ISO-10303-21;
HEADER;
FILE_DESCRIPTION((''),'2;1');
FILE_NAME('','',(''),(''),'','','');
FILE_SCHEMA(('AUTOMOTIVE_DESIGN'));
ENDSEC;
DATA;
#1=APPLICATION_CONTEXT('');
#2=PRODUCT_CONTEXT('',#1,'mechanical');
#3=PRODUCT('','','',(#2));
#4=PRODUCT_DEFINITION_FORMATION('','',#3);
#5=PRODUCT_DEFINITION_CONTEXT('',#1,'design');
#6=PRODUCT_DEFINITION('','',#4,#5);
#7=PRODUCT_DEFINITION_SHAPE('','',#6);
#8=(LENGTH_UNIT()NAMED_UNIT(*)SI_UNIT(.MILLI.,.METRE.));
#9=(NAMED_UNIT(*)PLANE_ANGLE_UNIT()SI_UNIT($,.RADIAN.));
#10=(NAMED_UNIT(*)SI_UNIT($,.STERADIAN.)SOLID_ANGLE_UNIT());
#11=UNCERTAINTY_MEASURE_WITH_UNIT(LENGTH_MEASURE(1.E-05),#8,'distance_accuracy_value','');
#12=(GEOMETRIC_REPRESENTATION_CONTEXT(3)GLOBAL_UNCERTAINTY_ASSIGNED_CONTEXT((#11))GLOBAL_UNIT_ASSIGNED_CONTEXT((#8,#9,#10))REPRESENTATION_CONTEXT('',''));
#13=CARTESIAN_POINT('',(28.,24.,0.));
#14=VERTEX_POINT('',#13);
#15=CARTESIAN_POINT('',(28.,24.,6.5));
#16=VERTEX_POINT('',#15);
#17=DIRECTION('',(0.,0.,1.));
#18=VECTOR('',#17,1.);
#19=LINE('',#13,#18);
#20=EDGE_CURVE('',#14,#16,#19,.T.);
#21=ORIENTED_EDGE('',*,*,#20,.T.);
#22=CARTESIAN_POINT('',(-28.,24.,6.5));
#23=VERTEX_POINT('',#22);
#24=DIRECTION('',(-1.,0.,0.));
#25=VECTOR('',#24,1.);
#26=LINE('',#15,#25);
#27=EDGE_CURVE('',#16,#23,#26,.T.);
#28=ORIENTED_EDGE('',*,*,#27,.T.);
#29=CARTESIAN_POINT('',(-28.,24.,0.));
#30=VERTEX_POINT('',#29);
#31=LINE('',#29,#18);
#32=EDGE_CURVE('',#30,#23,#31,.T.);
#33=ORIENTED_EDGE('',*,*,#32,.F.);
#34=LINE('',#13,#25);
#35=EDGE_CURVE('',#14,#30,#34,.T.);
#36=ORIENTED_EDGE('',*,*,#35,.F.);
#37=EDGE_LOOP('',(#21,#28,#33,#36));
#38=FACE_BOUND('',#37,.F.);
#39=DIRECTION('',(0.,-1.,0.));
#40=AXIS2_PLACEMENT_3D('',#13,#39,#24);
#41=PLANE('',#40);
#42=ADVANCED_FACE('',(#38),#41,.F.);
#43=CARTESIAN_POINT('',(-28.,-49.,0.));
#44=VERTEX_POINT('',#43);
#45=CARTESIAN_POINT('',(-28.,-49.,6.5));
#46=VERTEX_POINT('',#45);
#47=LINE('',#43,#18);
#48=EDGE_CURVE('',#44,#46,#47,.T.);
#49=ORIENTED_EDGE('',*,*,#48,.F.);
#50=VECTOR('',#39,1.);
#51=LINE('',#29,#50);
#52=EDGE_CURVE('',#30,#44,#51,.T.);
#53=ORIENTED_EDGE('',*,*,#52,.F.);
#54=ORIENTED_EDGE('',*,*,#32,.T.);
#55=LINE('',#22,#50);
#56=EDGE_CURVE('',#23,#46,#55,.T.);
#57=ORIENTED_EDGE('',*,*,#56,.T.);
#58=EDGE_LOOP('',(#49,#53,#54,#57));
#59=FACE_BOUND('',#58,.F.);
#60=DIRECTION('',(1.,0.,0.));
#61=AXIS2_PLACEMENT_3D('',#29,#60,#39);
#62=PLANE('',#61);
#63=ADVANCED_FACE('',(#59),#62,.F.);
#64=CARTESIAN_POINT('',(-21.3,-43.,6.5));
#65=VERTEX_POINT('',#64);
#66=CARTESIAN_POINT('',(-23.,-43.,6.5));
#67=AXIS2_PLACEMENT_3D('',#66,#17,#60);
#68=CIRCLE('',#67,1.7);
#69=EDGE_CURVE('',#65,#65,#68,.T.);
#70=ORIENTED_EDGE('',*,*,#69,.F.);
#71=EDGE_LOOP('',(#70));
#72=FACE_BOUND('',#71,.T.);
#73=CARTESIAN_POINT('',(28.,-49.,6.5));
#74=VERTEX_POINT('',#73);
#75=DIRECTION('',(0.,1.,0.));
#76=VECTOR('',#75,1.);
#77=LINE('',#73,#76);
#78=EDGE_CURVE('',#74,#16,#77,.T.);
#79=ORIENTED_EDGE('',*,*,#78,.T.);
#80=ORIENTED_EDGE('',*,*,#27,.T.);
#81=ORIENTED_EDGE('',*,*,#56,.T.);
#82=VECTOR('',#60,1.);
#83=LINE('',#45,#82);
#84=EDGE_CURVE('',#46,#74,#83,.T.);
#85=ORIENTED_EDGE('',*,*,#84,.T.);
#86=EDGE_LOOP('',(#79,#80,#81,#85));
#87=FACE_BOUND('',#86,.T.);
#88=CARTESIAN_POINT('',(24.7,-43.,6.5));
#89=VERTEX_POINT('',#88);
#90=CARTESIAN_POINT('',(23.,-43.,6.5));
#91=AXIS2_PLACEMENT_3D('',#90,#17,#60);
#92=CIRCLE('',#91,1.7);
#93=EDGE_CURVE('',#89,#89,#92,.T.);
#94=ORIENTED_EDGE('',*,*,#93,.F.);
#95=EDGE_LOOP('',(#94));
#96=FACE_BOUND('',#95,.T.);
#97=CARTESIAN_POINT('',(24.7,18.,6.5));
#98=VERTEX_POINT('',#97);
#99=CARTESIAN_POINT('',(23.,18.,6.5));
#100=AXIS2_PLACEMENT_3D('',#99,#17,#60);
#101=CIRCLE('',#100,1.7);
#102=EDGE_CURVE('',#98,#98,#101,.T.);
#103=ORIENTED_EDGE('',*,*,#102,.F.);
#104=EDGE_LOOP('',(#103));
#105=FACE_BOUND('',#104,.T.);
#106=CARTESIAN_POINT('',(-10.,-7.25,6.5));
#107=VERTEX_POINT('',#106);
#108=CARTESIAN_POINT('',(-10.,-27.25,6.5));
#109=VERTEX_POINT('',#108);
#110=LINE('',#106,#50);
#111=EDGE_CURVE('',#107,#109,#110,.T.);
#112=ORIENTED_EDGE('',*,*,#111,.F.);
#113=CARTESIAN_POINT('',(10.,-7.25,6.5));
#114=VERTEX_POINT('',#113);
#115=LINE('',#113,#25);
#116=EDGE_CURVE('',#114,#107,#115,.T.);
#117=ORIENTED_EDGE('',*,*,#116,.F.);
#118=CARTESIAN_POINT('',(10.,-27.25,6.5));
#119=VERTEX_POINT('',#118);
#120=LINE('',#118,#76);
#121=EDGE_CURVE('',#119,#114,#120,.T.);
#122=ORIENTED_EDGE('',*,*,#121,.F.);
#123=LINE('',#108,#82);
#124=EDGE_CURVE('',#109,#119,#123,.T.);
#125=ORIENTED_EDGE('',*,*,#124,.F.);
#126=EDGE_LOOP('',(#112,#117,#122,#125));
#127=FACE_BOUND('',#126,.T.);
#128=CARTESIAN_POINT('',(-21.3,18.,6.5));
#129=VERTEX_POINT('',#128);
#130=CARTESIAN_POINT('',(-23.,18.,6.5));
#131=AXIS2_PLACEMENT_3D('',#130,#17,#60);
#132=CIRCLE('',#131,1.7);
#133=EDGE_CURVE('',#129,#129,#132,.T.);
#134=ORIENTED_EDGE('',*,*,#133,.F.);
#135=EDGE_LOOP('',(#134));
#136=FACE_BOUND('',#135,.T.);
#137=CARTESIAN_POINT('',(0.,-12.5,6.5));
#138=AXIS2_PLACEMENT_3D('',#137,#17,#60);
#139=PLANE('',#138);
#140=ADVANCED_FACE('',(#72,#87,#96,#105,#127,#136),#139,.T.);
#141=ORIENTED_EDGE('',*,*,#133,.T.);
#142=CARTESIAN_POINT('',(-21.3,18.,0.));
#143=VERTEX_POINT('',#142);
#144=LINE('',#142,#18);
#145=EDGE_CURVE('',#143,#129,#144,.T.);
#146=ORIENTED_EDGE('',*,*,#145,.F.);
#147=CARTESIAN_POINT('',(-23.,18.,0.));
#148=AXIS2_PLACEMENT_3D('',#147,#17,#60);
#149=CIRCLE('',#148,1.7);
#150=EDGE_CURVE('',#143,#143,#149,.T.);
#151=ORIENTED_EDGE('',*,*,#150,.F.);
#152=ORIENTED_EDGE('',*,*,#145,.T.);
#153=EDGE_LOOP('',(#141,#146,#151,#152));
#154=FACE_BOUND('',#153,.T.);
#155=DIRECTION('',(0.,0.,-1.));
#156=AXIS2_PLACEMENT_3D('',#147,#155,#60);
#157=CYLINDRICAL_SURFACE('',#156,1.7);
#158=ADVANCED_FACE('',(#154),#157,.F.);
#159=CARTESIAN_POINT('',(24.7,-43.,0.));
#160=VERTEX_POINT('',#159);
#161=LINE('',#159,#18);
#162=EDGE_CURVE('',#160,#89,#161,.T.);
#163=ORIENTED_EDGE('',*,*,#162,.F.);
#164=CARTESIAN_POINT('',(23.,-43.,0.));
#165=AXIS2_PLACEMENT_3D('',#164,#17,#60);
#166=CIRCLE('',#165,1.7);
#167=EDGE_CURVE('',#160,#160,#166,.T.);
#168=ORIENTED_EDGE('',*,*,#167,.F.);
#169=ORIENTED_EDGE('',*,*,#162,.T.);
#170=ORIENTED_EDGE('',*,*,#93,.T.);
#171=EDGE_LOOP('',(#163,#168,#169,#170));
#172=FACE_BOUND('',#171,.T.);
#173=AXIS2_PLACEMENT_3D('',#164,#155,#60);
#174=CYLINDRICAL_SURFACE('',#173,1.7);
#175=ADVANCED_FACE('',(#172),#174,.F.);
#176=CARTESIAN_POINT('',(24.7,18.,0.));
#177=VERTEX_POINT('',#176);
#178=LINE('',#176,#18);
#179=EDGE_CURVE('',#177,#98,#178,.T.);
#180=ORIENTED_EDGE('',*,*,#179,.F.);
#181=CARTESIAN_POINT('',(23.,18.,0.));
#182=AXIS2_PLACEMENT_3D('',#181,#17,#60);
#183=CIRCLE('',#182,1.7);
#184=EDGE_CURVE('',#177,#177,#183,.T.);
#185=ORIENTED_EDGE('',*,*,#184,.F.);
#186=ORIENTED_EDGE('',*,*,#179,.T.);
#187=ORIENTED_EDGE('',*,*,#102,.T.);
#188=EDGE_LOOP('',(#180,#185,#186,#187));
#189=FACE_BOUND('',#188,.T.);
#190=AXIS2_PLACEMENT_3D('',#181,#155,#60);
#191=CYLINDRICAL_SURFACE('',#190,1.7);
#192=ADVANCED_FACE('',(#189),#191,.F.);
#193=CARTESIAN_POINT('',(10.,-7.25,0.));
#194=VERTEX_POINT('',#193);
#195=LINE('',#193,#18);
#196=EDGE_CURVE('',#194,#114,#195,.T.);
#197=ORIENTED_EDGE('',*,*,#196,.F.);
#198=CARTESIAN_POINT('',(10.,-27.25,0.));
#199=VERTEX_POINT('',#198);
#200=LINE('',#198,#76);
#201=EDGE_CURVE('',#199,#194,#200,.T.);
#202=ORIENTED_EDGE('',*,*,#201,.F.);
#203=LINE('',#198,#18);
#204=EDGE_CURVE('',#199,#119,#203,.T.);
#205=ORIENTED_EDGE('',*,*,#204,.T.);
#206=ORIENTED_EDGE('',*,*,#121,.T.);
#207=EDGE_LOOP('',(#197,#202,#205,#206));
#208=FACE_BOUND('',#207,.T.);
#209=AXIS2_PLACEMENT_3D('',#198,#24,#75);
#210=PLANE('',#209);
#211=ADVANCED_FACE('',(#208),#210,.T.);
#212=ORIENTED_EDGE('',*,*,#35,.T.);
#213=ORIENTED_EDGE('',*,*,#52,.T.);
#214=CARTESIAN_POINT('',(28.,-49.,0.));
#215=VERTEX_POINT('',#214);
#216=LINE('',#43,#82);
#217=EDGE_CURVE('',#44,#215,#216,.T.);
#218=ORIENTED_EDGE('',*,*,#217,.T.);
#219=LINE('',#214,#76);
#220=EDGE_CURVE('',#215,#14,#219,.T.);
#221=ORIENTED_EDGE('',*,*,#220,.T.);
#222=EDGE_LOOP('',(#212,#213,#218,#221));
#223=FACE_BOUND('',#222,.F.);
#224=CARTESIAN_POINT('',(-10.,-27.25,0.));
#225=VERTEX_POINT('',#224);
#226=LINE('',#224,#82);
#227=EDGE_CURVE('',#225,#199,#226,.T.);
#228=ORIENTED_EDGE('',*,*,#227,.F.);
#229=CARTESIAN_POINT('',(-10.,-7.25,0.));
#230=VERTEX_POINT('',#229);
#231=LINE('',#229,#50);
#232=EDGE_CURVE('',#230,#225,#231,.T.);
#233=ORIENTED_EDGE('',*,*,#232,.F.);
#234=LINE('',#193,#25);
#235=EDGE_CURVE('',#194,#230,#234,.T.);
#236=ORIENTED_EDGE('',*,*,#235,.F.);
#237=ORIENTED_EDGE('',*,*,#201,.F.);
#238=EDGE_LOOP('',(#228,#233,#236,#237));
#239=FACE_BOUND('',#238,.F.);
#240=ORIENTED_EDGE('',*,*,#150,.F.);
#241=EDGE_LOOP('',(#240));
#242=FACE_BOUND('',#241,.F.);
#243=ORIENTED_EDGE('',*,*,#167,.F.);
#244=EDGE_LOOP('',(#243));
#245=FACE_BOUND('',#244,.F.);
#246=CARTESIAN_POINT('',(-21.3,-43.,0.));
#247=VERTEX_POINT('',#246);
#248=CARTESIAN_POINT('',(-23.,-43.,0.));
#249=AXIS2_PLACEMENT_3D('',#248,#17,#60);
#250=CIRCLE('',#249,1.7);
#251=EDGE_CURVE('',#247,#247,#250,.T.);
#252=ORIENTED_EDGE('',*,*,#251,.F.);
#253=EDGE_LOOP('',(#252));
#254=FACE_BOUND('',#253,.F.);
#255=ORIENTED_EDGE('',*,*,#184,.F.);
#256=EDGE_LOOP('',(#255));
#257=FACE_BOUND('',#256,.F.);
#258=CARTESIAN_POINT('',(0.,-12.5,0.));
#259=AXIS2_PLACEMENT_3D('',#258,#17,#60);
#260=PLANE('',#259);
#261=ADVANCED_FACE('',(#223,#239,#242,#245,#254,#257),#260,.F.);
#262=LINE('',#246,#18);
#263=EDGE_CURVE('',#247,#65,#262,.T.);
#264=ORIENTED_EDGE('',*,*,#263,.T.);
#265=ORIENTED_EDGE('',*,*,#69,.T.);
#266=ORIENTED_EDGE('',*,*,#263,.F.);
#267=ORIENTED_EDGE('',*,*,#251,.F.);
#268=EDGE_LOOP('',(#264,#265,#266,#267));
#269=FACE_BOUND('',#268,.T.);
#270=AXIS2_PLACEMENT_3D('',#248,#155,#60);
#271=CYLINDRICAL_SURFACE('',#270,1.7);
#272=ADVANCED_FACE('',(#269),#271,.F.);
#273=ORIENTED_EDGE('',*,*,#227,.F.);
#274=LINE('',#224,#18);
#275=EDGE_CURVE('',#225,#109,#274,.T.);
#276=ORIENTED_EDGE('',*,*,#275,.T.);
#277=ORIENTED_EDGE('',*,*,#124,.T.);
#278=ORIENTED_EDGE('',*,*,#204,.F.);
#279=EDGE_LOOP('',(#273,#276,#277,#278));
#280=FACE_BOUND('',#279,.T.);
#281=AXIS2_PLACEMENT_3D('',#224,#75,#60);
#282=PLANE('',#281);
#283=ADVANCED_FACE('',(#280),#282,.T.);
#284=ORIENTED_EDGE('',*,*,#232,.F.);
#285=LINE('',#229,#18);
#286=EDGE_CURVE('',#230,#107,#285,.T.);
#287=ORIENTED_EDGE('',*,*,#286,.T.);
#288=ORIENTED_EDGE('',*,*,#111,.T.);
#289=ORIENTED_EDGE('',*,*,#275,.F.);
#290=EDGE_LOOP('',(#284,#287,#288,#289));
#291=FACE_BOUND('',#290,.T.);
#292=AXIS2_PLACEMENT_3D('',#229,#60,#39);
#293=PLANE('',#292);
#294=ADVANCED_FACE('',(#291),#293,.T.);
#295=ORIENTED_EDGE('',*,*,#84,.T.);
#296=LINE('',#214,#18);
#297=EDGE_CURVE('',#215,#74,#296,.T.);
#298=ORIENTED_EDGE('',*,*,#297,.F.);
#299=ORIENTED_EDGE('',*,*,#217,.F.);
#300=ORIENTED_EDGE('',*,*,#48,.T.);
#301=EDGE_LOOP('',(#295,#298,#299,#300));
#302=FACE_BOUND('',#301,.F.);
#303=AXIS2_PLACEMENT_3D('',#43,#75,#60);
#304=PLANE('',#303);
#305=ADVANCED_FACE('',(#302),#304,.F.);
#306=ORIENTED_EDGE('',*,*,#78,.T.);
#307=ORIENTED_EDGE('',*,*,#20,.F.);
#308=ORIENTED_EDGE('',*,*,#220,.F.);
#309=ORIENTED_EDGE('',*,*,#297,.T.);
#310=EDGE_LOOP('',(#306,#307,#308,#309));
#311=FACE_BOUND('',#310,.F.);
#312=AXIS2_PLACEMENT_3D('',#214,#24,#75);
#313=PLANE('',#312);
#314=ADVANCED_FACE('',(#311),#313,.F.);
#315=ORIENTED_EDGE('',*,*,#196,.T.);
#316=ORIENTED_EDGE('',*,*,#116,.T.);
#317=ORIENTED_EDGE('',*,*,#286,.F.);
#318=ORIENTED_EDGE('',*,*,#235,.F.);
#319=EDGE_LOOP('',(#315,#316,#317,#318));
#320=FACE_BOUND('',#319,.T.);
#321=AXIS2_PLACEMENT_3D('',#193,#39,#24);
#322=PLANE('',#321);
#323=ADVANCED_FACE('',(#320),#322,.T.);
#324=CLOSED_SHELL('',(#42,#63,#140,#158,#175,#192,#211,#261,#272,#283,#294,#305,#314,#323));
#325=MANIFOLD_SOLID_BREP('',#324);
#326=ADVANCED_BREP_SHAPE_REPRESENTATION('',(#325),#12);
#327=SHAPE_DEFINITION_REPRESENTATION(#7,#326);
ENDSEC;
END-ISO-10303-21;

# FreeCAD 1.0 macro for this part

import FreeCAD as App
import Part
import Sketcher
Q = App.Units.Quantity

doc = App.newDocument("Part")
body = doc.addObject("PartDesign::Body", "Body")

# Sketch on XY plane
sketch1 = body.newObject("Sketcher::SketchObject", "Sketch")
sketch1.AttachmentSupport = (doc.getObject("XY_Plane"), [""])
sketch1.MapMode = "FlatFace"
sketch1.addGeometry([
    Part.LineSegment(App.Vector(-28, 24, 0), App.Vector(-28, -49, 0)),  # 0
    Part.LineSegment(App.Vector(-28, -49, 0), App.Vector(28, -49, 0)),  # 1
    Part.LineSegment(App.Vector(28, -49, 0), App.Vector(28, 24, 0)),  # 2
    Part.LineSegment(App.Vector(28, 24, 0), App.Vector(-28, 24, 0)),  # 3
    Part.Circle(App.Vector(-23, -43, 0), App.Vector(0, 0, 1), 1.7),  # 4
    Part.Circle(App.Vector(23, -43, 0), App.Vector(0, 0, 1), 1.7),  # 5
    Part.LineSegment(App.Vector(10, -27.25, 0), App.Vector(-10, -27.25, 0)),  # 6
    Part.LineSegment(App.Vector(-10, -27.25, 0), App.Vector(-10, -7.25, 0)),  # 7
    Part.LineSegment(App.Vector(-10, -7.25, 0), App.Vector(10, -7.25, 0)),  # 8
    Part.LineSegment(App.Vector(10, -7.25, 0), App.Vector(10, -27.25, 0)),  # 9
    Part.Circle(App.Vector(-23, 18, 0), App.Vector(0, 0, 1), 1.7),  # 10
    Part.Circle(App.Vector(23, 18, 0), App.Vector(0, 0, 1), 1.7),  # 11
], False)
sketch1.addConstraint([
    Sketcher.Constraint("Coincident", 0, 2, 1, 1),
    Sketcher.Constraint("Coincident", 1, 2, 2, 1),
    Sketcher.Constraint("Coincident", 2, 2, 3, 1),
    Sketcher.Constraint("Coincident", 3, 2, 0, 1),
    Sketcher.Constraint("Coincident", 6, 2, 7, 1),
    Sketcher.Constraint("Coincident", 7, 2, 8, 1),
    Sketcher.Constraint("Coincident", 8, 2, 9, 1),
    Sketcher.Constraint("Coincident", 9, 2, 6, 1),
    Sketcher.Constraint("Vertical", 0),
    Sketcher.Constraint("Horizontal", 1),
    Sketcher.Constraint("Vertical", 2),
    Sketcher.Constraint("Horizontal", 3),
    Sketcher.Constraint("Horizontal", 6),
    Sketcher.Constraint("Vertical", 7),
    Sketcher.Constraint("Horizontal", 8),
    Sketcher.Constraint("Vertical", 9),
    Sketcher.Constraint("Equal", 4, 5),
    Sketcher.Constraint("Equal", 5, 10),
    Sketcher.Constraint("Equal", 10, 11),
    Sketcher.Constraint("Symmetric", 4, 3, 5, 3, -2),
    Sketcher.Constraint("Symmetric", 10, 3, 11, 3, -2),
    Sketcher.Constraint("Vertical", 4, 3, 10, 3),
    Sketcher.Constraint("Equal", 8, 7),
    Sketcher.Constraint("Diameter", 4, Q("3.4 mm")),
    Sketcher.Constraint("DistanceX", 1, 1, 1, 2, Q("56 mm")),
    Sketcher.Constraint("DistanceX", 6, 2, 6, 1, Q("20 mm")),
    Sketcher.Constraint("DistanceY", 0, 2, 0, 1, Q("73 mm")),
    Sketcher.Constraint("DistanceX", 4, 3, -1, 1, Q("23 mm")),
    Sketcher.Constraint("DistanceY", 4, 3, -1, 1, Q("43 mm")),
    Sketcher.Constraint("DistanceY", -1, 1, 10, 3, Q("18 mm")),
    Sketcher.Constraint("DistanceX", 0, 2, -1, 1, Q("28 mm")),
    Sketcher.Constraint("DistanceY", 0, 2, -1, 1, Q("49 mm")),
    Sketcher.Constraint("DistanceX", 6, 2, -1, 1, Q("10 mm")),
    Sketcher.Constraint("DistanceY", 6, 2, -1, 1, Q("27.25 mm")),
])
pad1 = body.newObject("PartDesign::Pad", "Pad")
pad1.Profile = sketch1
pad1.Length = 6.5

doc.recompute()
